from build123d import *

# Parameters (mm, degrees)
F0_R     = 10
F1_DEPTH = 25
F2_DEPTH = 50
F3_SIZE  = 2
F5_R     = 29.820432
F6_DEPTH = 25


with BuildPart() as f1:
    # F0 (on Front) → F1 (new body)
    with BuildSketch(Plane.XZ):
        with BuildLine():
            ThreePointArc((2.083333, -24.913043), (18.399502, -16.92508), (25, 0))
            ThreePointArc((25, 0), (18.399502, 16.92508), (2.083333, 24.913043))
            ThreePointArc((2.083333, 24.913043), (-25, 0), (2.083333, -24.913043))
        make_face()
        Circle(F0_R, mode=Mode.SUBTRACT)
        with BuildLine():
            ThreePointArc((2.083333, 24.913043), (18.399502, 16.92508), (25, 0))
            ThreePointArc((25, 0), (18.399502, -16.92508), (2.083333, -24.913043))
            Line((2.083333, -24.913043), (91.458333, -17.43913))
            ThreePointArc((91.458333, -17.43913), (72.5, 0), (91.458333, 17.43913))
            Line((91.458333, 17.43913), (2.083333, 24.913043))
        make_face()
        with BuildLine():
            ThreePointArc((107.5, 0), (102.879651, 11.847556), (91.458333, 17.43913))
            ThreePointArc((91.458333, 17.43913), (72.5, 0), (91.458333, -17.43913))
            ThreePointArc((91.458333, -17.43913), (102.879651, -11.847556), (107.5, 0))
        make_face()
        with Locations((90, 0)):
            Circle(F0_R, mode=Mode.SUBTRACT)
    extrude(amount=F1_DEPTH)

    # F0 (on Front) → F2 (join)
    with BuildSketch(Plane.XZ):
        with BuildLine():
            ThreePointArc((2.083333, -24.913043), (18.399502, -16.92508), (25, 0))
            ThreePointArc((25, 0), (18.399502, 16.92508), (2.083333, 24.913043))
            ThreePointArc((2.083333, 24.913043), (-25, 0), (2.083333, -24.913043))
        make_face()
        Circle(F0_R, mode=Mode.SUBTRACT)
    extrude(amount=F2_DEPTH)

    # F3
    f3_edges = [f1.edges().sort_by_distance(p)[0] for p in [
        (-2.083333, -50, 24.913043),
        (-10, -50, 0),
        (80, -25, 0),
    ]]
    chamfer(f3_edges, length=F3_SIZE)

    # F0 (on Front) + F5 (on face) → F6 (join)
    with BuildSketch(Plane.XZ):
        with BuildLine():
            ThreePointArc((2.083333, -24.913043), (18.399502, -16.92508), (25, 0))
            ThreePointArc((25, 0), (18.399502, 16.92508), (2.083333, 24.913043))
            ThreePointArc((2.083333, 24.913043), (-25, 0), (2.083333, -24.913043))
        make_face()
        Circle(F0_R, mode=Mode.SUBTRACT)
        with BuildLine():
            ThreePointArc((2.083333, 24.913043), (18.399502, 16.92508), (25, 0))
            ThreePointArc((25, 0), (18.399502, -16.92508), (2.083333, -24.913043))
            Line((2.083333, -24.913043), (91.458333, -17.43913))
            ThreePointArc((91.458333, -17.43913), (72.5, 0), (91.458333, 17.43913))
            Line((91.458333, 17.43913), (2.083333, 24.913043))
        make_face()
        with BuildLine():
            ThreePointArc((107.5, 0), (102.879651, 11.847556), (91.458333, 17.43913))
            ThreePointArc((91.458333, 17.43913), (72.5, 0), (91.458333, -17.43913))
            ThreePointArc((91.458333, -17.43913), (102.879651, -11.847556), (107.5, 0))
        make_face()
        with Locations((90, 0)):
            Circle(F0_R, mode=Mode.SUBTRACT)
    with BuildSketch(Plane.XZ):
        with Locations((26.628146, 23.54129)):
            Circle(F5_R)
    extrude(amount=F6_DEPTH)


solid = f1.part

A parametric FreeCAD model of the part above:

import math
import FreeCAD as App
import Part
import Sketcher
from FreeCAD import Vector


def edges_at(feature, points):
    """Names of the edges that pass closest to the given points."""
    edges = feature.Shape.Edges
    near = lambda p: min(range(len(edges)), key=lambda i: edges[i].distToShape(Part.Vertex(*p))[0])
    return sorted({f"Edge{near(p) + 1}" for p in points})

doc = App.newDocument("Part")
body = doc.addObject("PartDesign::Body", "Body")

sketch1 = doc.addObject("Sketcher::SketchObject", "Sketch")
body.addObject(sketch1)
sketch1.AttachmentSupport = (doc.XZ_Plane, [""])
sketch1.MapMode = "FlatFace"
sketch1.addGeometry([
    Part.ArcOfCircle(Part.Circle(Vector(0, 0, 0), Vector(0, 0, 1), 25), math.radians(85), math.radians(275)),
    Part.LineSegment(Vector(2, -25, 0), Vector(91, -17, 0)),
    Part.ArcOfCircle(Part.Circle(Vector(90, 0, 0), Vector(0, 0, 1), 18), math.radians(-85), math.radians(0)),
    Part.ArcOfCircle(Part.Circle(Vector(90, 0, 0), Vector(0, 0, 1), 18), math.radians(0), math.radians(85)),
    Part.LineSegment(Vector(91, 17, 0), Vector(2, 25, 0)),
    Part.Circle(Vector(0, 0, 0), Vector(0, 0, 1), 10),
    Part.Circle(Vector(90, 0, 0), Vector(0, 0, 1), 10),
], False)
sketch1.addConstraint([
    Sketcher.Constraint("Tangent", 0, 2, 1, 1),
    Sketcher.Constraint("Tangent", 1, 2, 2, 1),
    Sketcher.Constraint("Tangent", 2, 2, 3, 1),
    Sketcher.Constraint("Tangent", 3, 2, 4, 1),
    Sketcher.Constraint("Tangent", 4, 2, 0, 1),
    Sketcher.Constraint("Coincident", 0, 3, -1, 1),
    Sketcher.Constraint("Coincident", 5, 3, -1, 1),
    Sketcher.Constraint("Coincident", 6, 3, 2, 3),
    Sketcher.Constraint("Equal", 2, 3),
    Sketcher.Constraint("Equal", 5, 6),
    Sketcher.Constraint("PointOnObject", 2, 3, -1),
    Sketcher.Constraint("PointOnObject", 2, 2, -1),
    Sketcher.Constraint("Diameter", 5, 20.0),
    Sketcher.Constraint("Radius", 0, 25.0),
    Sketcher.Constraint("Radius", 2, 17.5),
    Sketcher.Constraint("DistanceX", -1, 1, 2, 3, 90.0),
])
pad1 = doc.addObject("PartDesign::Pad", "Pad")
body.addObject(pad1)
pad1.Profile = sketch1
pad1.Length = 25

sketch2 = doc.addObject("Sketcher::SketchObject", "Sketch001")
body.addObject(sketch2)
sketch2.AttachmentSupport = (doc.XZ_Plane, [""])
sketch2.MapMode = "FlatFace"
sketch2.addGeometry([
    Part.ArcOfCircle(Part.Circle(Vector(0, 0, 0), Vector(0, 0, 1), 25), math.radians(-85), math.radians(0)),
    Part.ArcOfCircle(Part.Circle(Vector(0, 0, 0), Vector(0, 0, 1), 25), math.radians(0), math.radians(85)),
    Part.ArcOfCircle(Part.Circle(Vector(0, 0, 0), Vector(0, 0, 1), 25), math.radians(85), math.radians(275)),
    Part.Circle(Vector(0, 0, 0), Vector(0, 0, 1), 10),
], False)
sketch2.addConstraint([
    Sketcher.Constraint("Tangent", 0, 2, 1, 1),
    Sketcher.Constraint("Tangent", 1, 2, 2, 1),
    Sketcher.Constraint("Tangent", 2, 2, 0, 1),
    Sketcher.Constraint("Coincident", 0, 3, -1, 1),
    Sketcher.Constraint("Coincident", 3, 3, -1, 1),
    Sketcher.Constraint("PointOnObject", 0, 2, -1),
    Sketcher.Constraint("Vertical", 1, 2, 2, 2),
    Sketcher.Constraint("Diameter", 3, 20.0),
    Sketcher.Constraint("Radius", 0, 24.999999),
    Sketcher.Constraint("DistanceX", -1, 1, 1, 2, 2.083333),
])
pad2 = doc.addObject("PartDesign::Pad", "Pad001")
body.addObject(pad2)
pad2.Profile = sketch2
pad2.Length = 50
doc.recompute()

chamfer = doc.addObject("PartDesign::Chamfer", "Chamfer")
body.addObject(chamfer)
chamfer.Base = (pad2, edges_at(pad2, [(-25, -50, 0), (-10, -50, 0), (80, -25, 0)]))
chamfer.Size = 2

sketch3 = doc.addObject("Sketcher::SketchObject", "Sketch002")
body.addObject(sketch3)
sketch3.AttachmentSupport = (doc.XZ_Plane, [""])
sketch3.MapMode = "FlatFace"
sketch3.addGeometry([
    Part.ArcOfCircle(Part.Circle(Vector(27, 24, 0), Vector(0, 0, 1), 30), math.radians(-6), math.radians(178)),
    Part.ArcOfCircle(Part.Circle(Vector(0, 0, 0), Vector(0, 0, 1), 25), math.radians(97), math.radians(275)),
    Part.LineSegment(Vector(2, -25, 0), Vector(91, -17, 0)),
    Part.ArcOfCircle(Part.Circle(Vector(90, 0, 0), Vector(0, 0, 1), 18), math.radians(-85), math.radians(0)),
    Part.ArcOfCircle(Part.Circle(Vector(90, 0, 0), Vector(0, 0, 1), 18), math.radians(0), math.radians(85)),
    Part.LineSegment(Vector(91, 17, 0), Vector(56, 20, 0)),
    Part.ArcOfCircle(Part.Circle(Vector(0, 0, 0), Vector(0, 0, 1), 10), math.radians(90), math.radians(353)),
    Part.ArcOfCircle(Part.Circle(Vector(27, 24, 0), Vector(0, 0, 1), 30), math.radians(-153), math.radians(-124)),
    Part.Circle(Vector(90, 0, 0), Vector(0, 0, 1), 10),
], False)
sketch3.addConstraint([
    Sketcher.Constraint("Coincident", 0, 2, 1, 1),
    Sketcher.Constraint("Tangent", 1, 2, 2, 1),
    Sketcher.Constraint("Tangent", 2, 2, 3, 1),
    Sketcher.Constraint("Tangent", 3, 2, 4, 1),
    Sketcher.Constraint("Tangent", 4, 2, 5, 1),
    Sketcher.Constraint("Coincident", 5, 2, 0, 1),
    Sketcher.Constraint("Coincident", 6, 1, 7, 1),
    Sketcher.Constraint("Coincident", 7, 2, 6, 2),
    Sketcher.Constraint("Coincident", 1, 3, -1, 1),
    Sketcher.Constraint("Coincident", 6, 3, -1, 1),
    Sketcher.Constraint("Coincident", 7, 3, 0, 3),
    Sketcher.Constraint("Coincident", 8, 3, 3, 3),
    Sketcher.Constraint("Equal", 3, 4),
    Sketcher.Constraint("Equal", 0, 7),
    Sketcher.Constraint("Equal", 6, 8),
    Sketcher.Constraint("Symmetric", 2, 2, 4, 2, -1),
    Sketcher.Constraint("PointOnObject", 3, 2, -1),
    Sketcher.Constraint("Diameter", 8, 20.0),
    Sketcher.Constraint("Radius", 1, 25.0),
    Sketcher.Constraint("Radius", 3, 17.5),
    Sketcher.Constraint("DistanceX", -1, 1, 3, 3, 90.0),
    Sketcher.Constraint("Radius", 0, 29.820432),
    Sketcher.Constraint("DistanceY", 1, 2, 7, 2, 23.746299),
    Sketcher.Constraint("Distance", 5, 35.300489),
])
pad3 = doc.addObject("PartDesign::Pad", "Pad002")
body.addObject(pad3)
pad3.Profile = sketch3
pad3.Length = 25

doc.recompute()
